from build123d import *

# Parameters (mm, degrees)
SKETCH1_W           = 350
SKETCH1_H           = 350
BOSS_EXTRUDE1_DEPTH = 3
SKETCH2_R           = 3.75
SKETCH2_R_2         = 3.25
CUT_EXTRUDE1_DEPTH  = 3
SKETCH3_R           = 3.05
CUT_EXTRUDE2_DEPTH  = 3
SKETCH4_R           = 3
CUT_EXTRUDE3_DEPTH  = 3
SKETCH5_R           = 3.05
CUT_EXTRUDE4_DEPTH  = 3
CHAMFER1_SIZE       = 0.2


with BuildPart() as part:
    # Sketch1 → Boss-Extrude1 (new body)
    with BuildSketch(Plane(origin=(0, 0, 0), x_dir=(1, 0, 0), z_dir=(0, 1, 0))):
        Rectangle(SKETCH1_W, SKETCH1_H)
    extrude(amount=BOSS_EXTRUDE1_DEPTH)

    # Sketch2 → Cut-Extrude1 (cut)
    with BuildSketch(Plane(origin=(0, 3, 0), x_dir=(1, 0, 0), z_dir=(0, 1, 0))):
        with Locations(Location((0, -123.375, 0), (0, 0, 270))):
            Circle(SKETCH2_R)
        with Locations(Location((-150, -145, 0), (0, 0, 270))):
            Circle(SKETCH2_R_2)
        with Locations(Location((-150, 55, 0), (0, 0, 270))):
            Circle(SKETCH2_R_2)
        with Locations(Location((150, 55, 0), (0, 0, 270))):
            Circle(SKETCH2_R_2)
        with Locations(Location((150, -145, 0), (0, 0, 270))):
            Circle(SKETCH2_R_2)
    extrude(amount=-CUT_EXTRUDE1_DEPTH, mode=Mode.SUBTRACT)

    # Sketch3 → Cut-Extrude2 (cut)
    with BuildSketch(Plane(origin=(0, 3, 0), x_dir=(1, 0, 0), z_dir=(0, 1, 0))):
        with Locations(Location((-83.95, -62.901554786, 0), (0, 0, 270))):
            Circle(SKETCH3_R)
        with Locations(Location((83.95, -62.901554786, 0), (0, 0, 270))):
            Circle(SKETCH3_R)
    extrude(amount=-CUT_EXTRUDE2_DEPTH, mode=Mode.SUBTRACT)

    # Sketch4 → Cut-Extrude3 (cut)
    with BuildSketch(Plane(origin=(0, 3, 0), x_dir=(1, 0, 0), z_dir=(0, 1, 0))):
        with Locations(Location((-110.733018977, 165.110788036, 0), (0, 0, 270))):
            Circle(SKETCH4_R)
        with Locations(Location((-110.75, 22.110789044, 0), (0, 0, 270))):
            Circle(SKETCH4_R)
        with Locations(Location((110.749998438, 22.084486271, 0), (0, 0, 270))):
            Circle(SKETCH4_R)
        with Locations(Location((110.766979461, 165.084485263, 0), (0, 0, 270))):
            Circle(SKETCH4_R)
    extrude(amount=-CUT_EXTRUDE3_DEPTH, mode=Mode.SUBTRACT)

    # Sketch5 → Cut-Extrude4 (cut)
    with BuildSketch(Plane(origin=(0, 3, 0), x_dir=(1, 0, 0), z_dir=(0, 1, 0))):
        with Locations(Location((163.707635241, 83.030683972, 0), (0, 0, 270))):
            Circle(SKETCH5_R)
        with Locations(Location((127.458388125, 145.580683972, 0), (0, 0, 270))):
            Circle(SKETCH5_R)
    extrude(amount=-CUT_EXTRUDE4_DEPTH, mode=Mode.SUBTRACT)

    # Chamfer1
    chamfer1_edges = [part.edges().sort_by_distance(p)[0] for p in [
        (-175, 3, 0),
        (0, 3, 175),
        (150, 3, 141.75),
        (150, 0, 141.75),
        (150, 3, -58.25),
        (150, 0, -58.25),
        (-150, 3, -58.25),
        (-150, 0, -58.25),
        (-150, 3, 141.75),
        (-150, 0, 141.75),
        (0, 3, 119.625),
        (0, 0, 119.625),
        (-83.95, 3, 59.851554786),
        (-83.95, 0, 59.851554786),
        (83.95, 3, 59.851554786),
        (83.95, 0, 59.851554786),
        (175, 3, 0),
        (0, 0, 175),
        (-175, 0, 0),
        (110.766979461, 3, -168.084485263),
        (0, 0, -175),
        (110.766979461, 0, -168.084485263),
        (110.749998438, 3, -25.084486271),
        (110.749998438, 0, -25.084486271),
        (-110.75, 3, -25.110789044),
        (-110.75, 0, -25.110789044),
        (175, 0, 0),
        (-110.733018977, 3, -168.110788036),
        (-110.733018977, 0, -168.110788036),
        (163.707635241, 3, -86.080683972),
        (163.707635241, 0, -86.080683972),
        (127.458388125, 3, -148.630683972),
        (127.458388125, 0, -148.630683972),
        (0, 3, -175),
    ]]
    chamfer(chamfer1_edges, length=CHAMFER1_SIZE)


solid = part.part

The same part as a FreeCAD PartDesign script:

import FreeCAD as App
import Part
import Sketcher
from FreeCAD import Vector
Q = App.Units.Quantity


def edges_at(feature, points):
    """Names of the edges that pass closest to the given points."""
    edges = feature.Shape.Edges
    near = lambda p: min(range(len(edges)), key=lambda i: edges[i].distToShape(Part.Vertex(*p))[0])
    return sorted({f"Edge{near(p) + 1}" for p in points})

doc = App.newDocument("Part")
body = doc.addObject("PartDesign::Body", "Body")

# Sketch on XZ plane
sketch1 = doc.addObject("Sketcher::SketchObject", "Sketch")
body.addObject(sketch1)
sketch1.AttachmentSupport = (doc.XZ_Plane, [""])
sketch1.MapMode = "FlatFace"
sketch1.addGeometry([
    Part.LineSegment(Vector(-175, -175, 0), Vector(-175, 175, 0)),
    Part.LineSegment(Vector(-175, 175, 0), Vector(175, 175, 0)),
    Part.LineSegment(Vector(175, 175, 0), Vector(175, -175, 0)),
    Part.LineSegment(Vector(175, -175, 0), Vector(-175, -175, 0)),
], False)
sketch1.addConstraint([
    Sketcher.Constraint("Coincident", 0, 2, 1, 1),
    Sketcher.Constraint("Coincident", 1, 2, 2, 1),
    Sketcher.Constraint("Coincident", 2, 2, 3, 1),
    Sketcher.Constraint("Coincident", 3, 2, 0, 1),
    Sketcher.Constraint("Vertical", 0),
    Sketcher.Constraint("Horizontal", 1),
    Sketcher.Constraint("Vertical", 2),
    Sketcher.Constraint("Horizontal", 3),
    Sketcher.Constraint("Symmetric", 0, 2, 2, 2, -1, 1),
    Sketcher.Constraint("Equal", 3, 0),
    Sketcher.Constraint("DistanceX", 1, 1, 1, 2, Q("350 mm")),
])
pad1 = doc.addObject("PartDesign::Pad", "Pad")
body.addObject(pad1)
pad1.Profile = sketch1
pad1.Length = 3
pad1.Reversed = True

# Sketch on XZ plane
sketch2 = doc.addObject("Sketcher::SketchObject", "Sketch001")
body.addObject(sketch2)
sketch2.AttachmentSupport = (doc.XZ_Plane, [""])
sketch2.MapMode = "FlatFace"
sketch2.AttachmentOffset = App.Placement(Vector(0, 0, -3), App.Rotation())
sketch2.addGeometry([
    Part.Circle(Vector(0, 123.375, 0), Vector(0, 0, 1), 3.75),  # 0
    Part.Circle(Vector(-150, 145, 0), Vector(0, 0, 1), 3.25),  # 1
    Part.Circle(Vector(-150, -55, 0), Vector(0, 0, 1), 3.25),  # 2
    Part.Circle(Vector(150, -55, 0), Vector(0, 0, 1), 3.25),  # 3
    Part.Circle(Vector(150, 145, 0), Vector(0, 0, 1), 3.25),  # 4
], False)
sketch2.addConstraint([
    Sketcher.Constraint("Equal", 1, 2),
    Sketcher.Constraint("Equal", 2, 3),
    Sketcher.Constraint("Equal", 3, 4),
    Sketcher.Constraint("Symmetric", 2, 3, 3, 3, -2),
    Sketcher.Constraint("Symmetric", 1, 3, 4, 3, -2),
    Sketcher.Constraint("PointOnObject", 0, 3, -2),
    Sketcher.Constraint("Vertical", 1, 3, 2, 3),
    Sketcher.Constraint("Diameter", 0, Q("7.5 mm")),
    Sketcher.Constraint("Diameter", 1, Q("6.5 mm")),
    Sketcher.Constraint("DistanceX", 1, 3, -1, 1, Q("150 mm")),
    Sketcher.Constraint("DistanceY", -1, 1, 1, 3, Q("145 mm")),
    Sketcher.Constraint("DistanceY", 2, 3, -1, 1, Q("55 mm")),
    Sketcher.Constraint("DistanceY", -1, 1, 0, 3, Q("123.375 mm")),
])
pocket1 = doc.addObject("PartDesign::Pocket", "Pocket")
body.addObject(pocket1)
pocket1.Profile = sketch2
pocket1.Length = 3
pocket1.Reversed = True

# Sketch on XZ plane
sketch3 = doc.addObject("Sketcher::SketchObject", "Sketch002")
body.addObject(sketch3)
sketch3.AttachmentSupport = (doc.XZ_Plane, [""])
sketch3.MapMode = "FlatFace"
sketch3.AttachmentOffset = App.Placement(Vector(0, 0, -3), App.Rotation())
sketch3.addGeometry([
    Part.Circle(Vector(-83.95, 62.901555, 0), Vector(0, 0, 1), 3.05),
    Part.Circle(Vector(83.95, 62.901555, 0), Vector(0, 0, 1), 3.05),
], False)
sketch3.addConstraint([
    Sketcher.Constraint("Equal", 0, 1),
    Sketcher.Constraint("Symmetric", 0, 3, 1, 3, -2),
    Sketcher.Constraint("Diameter", 0, Q("6.1 mm")),
    Sketcher.Constraint("DistanceX", 0, 3, 1, 3, Q("167.9 mm")),
    Sketcher.Constraint("DistanceY", -1, 1, 0, 3, Q("62.901555 mm")),
])
pocket2 = doc.addObject("PartDesign::Pocket", "Pocket001")
body.addObject(pocket2)
pocket2.Profile = sketch3
pocket2.Length = 3
pocket2.Reversed = True

# Sketch on XZ plane
sketch4 = doc.addObject("Sketcher::SketchObject", "Sketch003")
body.addObject(sketch4)
sketch4.AttachmentSupport = (doc.XZ_Plane, [""])
sketch4.MapMode = "FlatFace"
sketch4.AttachmentOffset = App.Placement(Vector(0, 0, -3), App.Rotation())
sketch4.addGeometry([
    Part.Circle(Vector(-110.733019, -165.110788, 0), Vector(0, 0, 1), 3),
    Part.Circle(Vector(-110.75, -22.110789, 0), Vector(0, 0, 1), 3),
    Part.Circle(Vector(110.749998, -22.084486, 0), Vector(0, 0, 1), 3),
    Part.Circle(Vector(110.766979, -165.084485, 0), Vector(0, 0, 1), 3),
], False)
sketch4.addConstraint([
    Sketcher.Constraint("Equal", 0, 1),
    Sketcher.Constraint("Equal", 1, 2),
    Sketcher.Constraint("Equal", 2, 3),
    Sketcher.Constraint("Diameter", 0, Q("6 mm")),
    Sketcher.Constraint("DistanceY", 0, 3, 1, 3, Q("142.999999 mm")),
    Sketcher.Constraint("DistanceY", 3, 3, 2, 3, Q("142.999999 mm")),
    Sketcher.Constraint("DistanceX", 1, 3, 2, 3, Q("221.499998 mm")),
    Sketcher.Constraint("DistanceX", 0, 3, 3, 3, Q("221.499998 mm")),
    Sketcher.Constraint("DistanceX", 1, 3, -1, 1, Q("110.75 mm")),
    Sketcher.Constraint("DistanceY", 0, 3, 2, 3, Q("143.026302 mm")),
    Sketcher.Constraint("DistanceX", 0, 3, -1, 1, Q("110.733019 mm")),
    Sketcher.Constraint("DistanceY", 0, 3, -1, 1, Q("165.110788 mm")),
])
pocket3 = doc.addObject("PartDesign::Pocket", "Pocket002")
body.addObject(pocket3)
pocket3.Profile = sketch4
pocket3.Length = 3
pocket3.Reversed = True

# Sketch on XZ plane
sketch5 = doc.addObject("Sketcher::SketchObject", "Sketch004")
body.addObject(sketch5)
sketch5.AttachmentSupport = (doc.XZ_Plane, [""])
sketch5.MapMode = "FlatFace"
sketch5.AttachmentOffset = App.Placement(Vector(0, 0, -3), App.Rotation())
sketch5.addGeometry([
    Part.Circle(Vector(163.707635, -83.030684, 0), Vector(0, 0, 1), 3.05),
    Part.Circle(Vector(127.458388, -145.580684, 0), Vector(0, 0, 1), 3.05),
], False)
sketch5.addConstraint([
    Sketcher.Constraint("Equal", 0, 1),
    Sketcher.Constraint("Diameter", 0, Q("6.1 mm")),
    Sketcher.Constraint("DistanceY", 1, 3, 0, 3, Q("62.55 mm")),
    Sketcher.Constraint("DistanceX", -1, 1, 1, 3, Q("127.458388 mm")),
    Sketcher.Constraint("DistanceX", -1, 1, 0, 3, Q("163.707635 mm")),
    Sketcher.Constraint("DistanceY", 0, 3, -1, 1, Q("83.030684 mm")),
])
pocket4 = doc.addObject("PartDesign::Pocket", "Pocket003")
body.addObject(pocket4)
pocket4.Profile = sketch5
pocket4.Length = 3
pocket4.Reversed = True
doc.recompute()

chamfer = doc.addObject("PartDesign::Chamfer", "Chamfer")
body.addObject(chamfer)
chamfer.Base = (pocket4, edges_at(pocket4, [
    (-175, 3, 0),
    (0, 3, 175),
    (150, 3, 141.75),
    (150, 0, 141.75),
    (150, 3, -58.25),
    (150, 0, -58.25),
    (-150, 3, -58.25),
    (-150, 0, -58.25),
    (-150, 3, 141.75),
    (-150, 0, 141.75),
    (0, 3, 119.625),
    (0, 0, 119.625),
    (-83.95, 3, 59.852),
    (-83.95, 0, 59.852),
    (83.95, 3, 59.852),
    (83.95, 0, 59.852),
    (175, 3, 0),
    (0, 0, 175),
    (-175, 0, 0),
    (110.767, 3, -168.084),
    (0, 0, -175),
    (110.767, 0, -168.084),
    (110.75, 3, -25.084),
    (110.75, 0, -25.084),
    (-110.75, 3, -25.111),
    (-110.75, 0, -25.111),
    (175, 0, 0),
    (-110.733, 3, -168.111),
    (-110.733, 0, -168.111),
    (163.708, 3, -86.081),
    (163.708, 0, -86.081),
    (127.458, 3, -148.631),
    (127.458, 0, -148.631),
    (0, 3, -175),
]))
chamfer.Size = 0.2

doc.recompute()
